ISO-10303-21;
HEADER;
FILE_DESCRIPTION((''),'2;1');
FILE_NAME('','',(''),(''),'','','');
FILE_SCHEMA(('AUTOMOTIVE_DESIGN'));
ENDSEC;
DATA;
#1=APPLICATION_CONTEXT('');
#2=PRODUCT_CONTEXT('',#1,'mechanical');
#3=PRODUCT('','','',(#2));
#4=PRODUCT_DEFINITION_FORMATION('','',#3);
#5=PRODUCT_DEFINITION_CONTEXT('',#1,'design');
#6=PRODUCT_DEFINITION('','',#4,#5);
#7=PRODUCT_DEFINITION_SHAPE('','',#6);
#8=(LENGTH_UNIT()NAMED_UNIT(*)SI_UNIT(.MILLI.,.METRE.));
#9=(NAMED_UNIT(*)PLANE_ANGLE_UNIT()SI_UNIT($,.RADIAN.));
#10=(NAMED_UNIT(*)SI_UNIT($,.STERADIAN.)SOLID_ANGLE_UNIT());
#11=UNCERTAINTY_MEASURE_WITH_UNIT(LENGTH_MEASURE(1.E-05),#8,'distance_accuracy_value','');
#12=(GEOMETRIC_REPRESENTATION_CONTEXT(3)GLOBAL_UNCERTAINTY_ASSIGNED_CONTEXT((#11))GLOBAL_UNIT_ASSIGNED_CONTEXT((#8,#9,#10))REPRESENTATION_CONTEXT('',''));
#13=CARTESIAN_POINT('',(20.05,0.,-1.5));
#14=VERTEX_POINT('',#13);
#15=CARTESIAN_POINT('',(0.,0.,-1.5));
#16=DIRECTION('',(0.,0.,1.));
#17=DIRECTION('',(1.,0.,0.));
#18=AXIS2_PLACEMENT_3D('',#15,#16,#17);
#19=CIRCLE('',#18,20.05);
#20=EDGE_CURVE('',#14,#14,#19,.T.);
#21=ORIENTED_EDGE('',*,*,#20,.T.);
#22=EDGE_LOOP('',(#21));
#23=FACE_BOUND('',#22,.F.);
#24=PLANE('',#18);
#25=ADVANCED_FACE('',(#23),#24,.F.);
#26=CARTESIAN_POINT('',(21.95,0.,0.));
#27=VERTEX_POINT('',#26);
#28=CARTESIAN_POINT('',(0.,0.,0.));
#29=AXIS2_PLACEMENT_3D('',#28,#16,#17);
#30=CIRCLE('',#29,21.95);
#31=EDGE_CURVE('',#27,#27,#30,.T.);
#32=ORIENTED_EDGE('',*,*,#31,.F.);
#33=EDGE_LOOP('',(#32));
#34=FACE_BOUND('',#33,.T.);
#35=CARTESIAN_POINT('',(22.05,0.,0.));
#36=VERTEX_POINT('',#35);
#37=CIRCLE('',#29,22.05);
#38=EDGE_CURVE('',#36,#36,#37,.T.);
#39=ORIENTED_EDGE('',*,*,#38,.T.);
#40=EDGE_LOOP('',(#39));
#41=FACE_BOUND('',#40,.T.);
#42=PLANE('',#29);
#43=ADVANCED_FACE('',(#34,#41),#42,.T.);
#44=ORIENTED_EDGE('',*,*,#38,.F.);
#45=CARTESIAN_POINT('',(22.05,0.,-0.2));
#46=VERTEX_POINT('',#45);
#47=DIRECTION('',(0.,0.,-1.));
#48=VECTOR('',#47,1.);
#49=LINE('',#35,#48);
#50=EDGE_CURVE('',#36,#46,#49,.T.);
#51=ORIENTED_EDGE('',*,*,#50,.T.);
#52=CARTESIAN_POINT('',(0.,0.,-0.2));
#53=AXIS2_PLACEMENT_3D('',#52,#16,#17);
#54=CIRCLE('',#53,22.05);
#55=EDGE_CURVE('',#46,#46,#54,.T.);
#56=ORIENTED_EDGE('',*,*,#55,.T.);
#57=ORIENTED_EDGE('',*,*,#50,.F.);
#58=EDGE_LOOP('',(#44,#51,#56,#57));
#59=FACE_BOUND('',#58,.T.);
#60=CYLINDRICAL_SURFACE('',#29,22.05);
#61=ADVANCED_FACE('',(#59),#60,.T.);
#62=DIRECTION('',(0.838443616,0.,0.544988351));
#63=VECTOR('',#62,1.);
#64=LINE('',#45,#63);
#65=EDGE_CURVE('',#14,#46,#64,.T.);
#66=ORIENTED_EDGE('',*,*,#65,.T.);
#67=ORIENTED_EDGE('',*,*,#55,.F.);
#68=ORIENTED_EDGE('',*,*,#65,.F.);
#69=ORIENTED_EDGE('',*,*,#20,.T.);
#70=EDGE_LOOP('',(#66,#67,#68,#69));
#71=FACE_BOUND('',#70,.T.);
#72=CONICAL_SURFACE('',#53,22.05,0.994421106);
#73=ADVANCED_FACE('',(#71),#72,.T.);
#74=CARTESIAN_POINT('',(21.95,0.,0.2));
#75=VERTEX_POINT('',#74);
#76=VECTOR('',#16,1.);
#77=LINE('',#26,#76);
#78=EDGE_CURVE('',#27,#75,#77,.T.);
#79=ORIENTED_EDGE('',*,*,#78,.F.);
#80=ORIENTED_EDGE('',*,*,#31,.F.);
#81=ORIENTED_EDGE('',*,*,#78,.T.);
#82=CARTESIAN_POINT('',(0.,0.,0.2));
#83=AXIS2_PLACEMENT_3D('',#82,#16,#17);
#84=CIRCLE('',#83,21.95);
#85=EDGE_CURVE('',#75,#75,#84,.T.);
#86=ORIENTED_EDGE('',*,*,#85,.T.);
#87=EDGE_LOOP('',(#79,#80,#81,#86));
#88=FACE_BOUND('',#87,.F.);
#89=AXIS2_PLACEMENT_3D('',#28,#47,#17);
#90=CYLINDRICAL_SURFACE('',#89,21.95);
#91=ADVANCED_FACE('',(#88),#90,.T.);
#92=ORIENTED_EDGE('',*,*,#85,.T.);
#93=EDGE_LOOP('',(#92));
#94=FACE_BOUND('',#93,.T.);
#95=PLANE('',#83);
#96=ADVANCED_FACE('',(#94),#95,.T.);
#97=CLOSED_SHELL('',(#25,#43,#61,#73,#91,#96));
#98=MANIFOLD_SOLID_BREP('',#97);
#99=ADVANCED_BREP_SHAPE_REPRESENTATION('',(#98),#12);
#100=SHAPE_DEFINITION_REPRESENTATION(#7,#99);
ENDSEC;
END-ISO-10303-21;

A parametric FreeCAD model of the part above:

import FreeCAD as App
import Part
import Sketcher
from FreeCAD import Vector


def edges_at(feature, points):
    """Names of the edges that pass closest to the given points."""
    edges = feature.Shape.Edges
    near = lambda p: min(range(len(edges)), key=lambda i: edges[i].distToShape(Part.Vertex(*p))[0])
    return sorted({f"Edge{near(p) + 1}" for p in points})

doc = App.newDocument("Part")
params = doc.addObject("Spreadsheet::Sheet", "Params")
for row, (alias, value) in enumerate([
    ("sketch1_diameter", "44.1 mm"),
    ("pad1_length", "1.5 mm"),
    ("chamfer_size", "2 mm"),
    ("chamfer_size2", "1.3 mm"),
    ("sketch2_diameter", "43.9 mm"),
    ("pad2_length", "0.2 mm"),
], start=1):
    params.set(f"A{row}", alias)
    params.set(f"B{row}", "=" + value)
    params.setAlias(f"B{row}", alias)

body = doc.addObject("PartDesign::Body", "Body")

# Sketch on XY plane
sketch1 = body.newObject("Sketcher::SketchObject", "Sketch")
sketch1.AttachmentSupport = (doc.getObject("XY_Plane"), [""])
sketch1.MapMode = "FlatFace"
sketch1.addGeometry(Part.Circle(Vector(0, 0, 0), Vector(0, 0, 1), 22.05), False)
sketch1.addConstraint(Sketcher.Constraint("Coincident", 0, 3, -1, 1))
sketch1.addConstraint(Sketcher.Constraint("Diameter", 0, 44.1))
sketch1.setExpression("Constraints[1]", "Params.sketch1_diameter")
pad1 = body.newObject("PartDesign::Pad", "Pad")
pad1.Profile = sketch1
pad1.setExpression("Length", "Params.pad1_length")
pad1.Reversed = True
doc.recompute()

chamfer = body.newObject("PartDesign::Chamfer", "Chamfer")
chamfer.Base = (pad1, edges_at(pad1, [(-22.05, 0, -1.5)]))
chamfer.ChamferType = "Two distances"
chamfer.setExpression("Size", "Params.chamfer_size")
chamfer.setExpression("Size2", "Params.chamfer_size2")
chamfer.FlipDirection = True

# Sketch on XY plane
sketch2 = body.newObject("Sketcher::SketchObject", "Sketch001")
sketch2.AttachmentSupport = (doc.getObject("XY_Plane"), [""])
sketch2.MapMode = "FlatFace"
sketch2.addGeometry(Part.Circle(Vector(0, 0, 0), Vector(0, 0, 1), 21.95), False)
sketch2.addConstraint(Sketcher.Constraint("Coincident", 0, 3, -1, 1))
sketch2.addConstraint(Sketcher.Constraint("Diameter", 0, 43.9))
sketch2.setExpression("Constraints[1]", "Params.sketch2_diameter")
pad2 = body.newObject("PartDesign::Pad", "Pad001")
pad2.Profile = sketch2
pad2.setExpression("Length", "Params.pad2_length")

doc.recompute()
